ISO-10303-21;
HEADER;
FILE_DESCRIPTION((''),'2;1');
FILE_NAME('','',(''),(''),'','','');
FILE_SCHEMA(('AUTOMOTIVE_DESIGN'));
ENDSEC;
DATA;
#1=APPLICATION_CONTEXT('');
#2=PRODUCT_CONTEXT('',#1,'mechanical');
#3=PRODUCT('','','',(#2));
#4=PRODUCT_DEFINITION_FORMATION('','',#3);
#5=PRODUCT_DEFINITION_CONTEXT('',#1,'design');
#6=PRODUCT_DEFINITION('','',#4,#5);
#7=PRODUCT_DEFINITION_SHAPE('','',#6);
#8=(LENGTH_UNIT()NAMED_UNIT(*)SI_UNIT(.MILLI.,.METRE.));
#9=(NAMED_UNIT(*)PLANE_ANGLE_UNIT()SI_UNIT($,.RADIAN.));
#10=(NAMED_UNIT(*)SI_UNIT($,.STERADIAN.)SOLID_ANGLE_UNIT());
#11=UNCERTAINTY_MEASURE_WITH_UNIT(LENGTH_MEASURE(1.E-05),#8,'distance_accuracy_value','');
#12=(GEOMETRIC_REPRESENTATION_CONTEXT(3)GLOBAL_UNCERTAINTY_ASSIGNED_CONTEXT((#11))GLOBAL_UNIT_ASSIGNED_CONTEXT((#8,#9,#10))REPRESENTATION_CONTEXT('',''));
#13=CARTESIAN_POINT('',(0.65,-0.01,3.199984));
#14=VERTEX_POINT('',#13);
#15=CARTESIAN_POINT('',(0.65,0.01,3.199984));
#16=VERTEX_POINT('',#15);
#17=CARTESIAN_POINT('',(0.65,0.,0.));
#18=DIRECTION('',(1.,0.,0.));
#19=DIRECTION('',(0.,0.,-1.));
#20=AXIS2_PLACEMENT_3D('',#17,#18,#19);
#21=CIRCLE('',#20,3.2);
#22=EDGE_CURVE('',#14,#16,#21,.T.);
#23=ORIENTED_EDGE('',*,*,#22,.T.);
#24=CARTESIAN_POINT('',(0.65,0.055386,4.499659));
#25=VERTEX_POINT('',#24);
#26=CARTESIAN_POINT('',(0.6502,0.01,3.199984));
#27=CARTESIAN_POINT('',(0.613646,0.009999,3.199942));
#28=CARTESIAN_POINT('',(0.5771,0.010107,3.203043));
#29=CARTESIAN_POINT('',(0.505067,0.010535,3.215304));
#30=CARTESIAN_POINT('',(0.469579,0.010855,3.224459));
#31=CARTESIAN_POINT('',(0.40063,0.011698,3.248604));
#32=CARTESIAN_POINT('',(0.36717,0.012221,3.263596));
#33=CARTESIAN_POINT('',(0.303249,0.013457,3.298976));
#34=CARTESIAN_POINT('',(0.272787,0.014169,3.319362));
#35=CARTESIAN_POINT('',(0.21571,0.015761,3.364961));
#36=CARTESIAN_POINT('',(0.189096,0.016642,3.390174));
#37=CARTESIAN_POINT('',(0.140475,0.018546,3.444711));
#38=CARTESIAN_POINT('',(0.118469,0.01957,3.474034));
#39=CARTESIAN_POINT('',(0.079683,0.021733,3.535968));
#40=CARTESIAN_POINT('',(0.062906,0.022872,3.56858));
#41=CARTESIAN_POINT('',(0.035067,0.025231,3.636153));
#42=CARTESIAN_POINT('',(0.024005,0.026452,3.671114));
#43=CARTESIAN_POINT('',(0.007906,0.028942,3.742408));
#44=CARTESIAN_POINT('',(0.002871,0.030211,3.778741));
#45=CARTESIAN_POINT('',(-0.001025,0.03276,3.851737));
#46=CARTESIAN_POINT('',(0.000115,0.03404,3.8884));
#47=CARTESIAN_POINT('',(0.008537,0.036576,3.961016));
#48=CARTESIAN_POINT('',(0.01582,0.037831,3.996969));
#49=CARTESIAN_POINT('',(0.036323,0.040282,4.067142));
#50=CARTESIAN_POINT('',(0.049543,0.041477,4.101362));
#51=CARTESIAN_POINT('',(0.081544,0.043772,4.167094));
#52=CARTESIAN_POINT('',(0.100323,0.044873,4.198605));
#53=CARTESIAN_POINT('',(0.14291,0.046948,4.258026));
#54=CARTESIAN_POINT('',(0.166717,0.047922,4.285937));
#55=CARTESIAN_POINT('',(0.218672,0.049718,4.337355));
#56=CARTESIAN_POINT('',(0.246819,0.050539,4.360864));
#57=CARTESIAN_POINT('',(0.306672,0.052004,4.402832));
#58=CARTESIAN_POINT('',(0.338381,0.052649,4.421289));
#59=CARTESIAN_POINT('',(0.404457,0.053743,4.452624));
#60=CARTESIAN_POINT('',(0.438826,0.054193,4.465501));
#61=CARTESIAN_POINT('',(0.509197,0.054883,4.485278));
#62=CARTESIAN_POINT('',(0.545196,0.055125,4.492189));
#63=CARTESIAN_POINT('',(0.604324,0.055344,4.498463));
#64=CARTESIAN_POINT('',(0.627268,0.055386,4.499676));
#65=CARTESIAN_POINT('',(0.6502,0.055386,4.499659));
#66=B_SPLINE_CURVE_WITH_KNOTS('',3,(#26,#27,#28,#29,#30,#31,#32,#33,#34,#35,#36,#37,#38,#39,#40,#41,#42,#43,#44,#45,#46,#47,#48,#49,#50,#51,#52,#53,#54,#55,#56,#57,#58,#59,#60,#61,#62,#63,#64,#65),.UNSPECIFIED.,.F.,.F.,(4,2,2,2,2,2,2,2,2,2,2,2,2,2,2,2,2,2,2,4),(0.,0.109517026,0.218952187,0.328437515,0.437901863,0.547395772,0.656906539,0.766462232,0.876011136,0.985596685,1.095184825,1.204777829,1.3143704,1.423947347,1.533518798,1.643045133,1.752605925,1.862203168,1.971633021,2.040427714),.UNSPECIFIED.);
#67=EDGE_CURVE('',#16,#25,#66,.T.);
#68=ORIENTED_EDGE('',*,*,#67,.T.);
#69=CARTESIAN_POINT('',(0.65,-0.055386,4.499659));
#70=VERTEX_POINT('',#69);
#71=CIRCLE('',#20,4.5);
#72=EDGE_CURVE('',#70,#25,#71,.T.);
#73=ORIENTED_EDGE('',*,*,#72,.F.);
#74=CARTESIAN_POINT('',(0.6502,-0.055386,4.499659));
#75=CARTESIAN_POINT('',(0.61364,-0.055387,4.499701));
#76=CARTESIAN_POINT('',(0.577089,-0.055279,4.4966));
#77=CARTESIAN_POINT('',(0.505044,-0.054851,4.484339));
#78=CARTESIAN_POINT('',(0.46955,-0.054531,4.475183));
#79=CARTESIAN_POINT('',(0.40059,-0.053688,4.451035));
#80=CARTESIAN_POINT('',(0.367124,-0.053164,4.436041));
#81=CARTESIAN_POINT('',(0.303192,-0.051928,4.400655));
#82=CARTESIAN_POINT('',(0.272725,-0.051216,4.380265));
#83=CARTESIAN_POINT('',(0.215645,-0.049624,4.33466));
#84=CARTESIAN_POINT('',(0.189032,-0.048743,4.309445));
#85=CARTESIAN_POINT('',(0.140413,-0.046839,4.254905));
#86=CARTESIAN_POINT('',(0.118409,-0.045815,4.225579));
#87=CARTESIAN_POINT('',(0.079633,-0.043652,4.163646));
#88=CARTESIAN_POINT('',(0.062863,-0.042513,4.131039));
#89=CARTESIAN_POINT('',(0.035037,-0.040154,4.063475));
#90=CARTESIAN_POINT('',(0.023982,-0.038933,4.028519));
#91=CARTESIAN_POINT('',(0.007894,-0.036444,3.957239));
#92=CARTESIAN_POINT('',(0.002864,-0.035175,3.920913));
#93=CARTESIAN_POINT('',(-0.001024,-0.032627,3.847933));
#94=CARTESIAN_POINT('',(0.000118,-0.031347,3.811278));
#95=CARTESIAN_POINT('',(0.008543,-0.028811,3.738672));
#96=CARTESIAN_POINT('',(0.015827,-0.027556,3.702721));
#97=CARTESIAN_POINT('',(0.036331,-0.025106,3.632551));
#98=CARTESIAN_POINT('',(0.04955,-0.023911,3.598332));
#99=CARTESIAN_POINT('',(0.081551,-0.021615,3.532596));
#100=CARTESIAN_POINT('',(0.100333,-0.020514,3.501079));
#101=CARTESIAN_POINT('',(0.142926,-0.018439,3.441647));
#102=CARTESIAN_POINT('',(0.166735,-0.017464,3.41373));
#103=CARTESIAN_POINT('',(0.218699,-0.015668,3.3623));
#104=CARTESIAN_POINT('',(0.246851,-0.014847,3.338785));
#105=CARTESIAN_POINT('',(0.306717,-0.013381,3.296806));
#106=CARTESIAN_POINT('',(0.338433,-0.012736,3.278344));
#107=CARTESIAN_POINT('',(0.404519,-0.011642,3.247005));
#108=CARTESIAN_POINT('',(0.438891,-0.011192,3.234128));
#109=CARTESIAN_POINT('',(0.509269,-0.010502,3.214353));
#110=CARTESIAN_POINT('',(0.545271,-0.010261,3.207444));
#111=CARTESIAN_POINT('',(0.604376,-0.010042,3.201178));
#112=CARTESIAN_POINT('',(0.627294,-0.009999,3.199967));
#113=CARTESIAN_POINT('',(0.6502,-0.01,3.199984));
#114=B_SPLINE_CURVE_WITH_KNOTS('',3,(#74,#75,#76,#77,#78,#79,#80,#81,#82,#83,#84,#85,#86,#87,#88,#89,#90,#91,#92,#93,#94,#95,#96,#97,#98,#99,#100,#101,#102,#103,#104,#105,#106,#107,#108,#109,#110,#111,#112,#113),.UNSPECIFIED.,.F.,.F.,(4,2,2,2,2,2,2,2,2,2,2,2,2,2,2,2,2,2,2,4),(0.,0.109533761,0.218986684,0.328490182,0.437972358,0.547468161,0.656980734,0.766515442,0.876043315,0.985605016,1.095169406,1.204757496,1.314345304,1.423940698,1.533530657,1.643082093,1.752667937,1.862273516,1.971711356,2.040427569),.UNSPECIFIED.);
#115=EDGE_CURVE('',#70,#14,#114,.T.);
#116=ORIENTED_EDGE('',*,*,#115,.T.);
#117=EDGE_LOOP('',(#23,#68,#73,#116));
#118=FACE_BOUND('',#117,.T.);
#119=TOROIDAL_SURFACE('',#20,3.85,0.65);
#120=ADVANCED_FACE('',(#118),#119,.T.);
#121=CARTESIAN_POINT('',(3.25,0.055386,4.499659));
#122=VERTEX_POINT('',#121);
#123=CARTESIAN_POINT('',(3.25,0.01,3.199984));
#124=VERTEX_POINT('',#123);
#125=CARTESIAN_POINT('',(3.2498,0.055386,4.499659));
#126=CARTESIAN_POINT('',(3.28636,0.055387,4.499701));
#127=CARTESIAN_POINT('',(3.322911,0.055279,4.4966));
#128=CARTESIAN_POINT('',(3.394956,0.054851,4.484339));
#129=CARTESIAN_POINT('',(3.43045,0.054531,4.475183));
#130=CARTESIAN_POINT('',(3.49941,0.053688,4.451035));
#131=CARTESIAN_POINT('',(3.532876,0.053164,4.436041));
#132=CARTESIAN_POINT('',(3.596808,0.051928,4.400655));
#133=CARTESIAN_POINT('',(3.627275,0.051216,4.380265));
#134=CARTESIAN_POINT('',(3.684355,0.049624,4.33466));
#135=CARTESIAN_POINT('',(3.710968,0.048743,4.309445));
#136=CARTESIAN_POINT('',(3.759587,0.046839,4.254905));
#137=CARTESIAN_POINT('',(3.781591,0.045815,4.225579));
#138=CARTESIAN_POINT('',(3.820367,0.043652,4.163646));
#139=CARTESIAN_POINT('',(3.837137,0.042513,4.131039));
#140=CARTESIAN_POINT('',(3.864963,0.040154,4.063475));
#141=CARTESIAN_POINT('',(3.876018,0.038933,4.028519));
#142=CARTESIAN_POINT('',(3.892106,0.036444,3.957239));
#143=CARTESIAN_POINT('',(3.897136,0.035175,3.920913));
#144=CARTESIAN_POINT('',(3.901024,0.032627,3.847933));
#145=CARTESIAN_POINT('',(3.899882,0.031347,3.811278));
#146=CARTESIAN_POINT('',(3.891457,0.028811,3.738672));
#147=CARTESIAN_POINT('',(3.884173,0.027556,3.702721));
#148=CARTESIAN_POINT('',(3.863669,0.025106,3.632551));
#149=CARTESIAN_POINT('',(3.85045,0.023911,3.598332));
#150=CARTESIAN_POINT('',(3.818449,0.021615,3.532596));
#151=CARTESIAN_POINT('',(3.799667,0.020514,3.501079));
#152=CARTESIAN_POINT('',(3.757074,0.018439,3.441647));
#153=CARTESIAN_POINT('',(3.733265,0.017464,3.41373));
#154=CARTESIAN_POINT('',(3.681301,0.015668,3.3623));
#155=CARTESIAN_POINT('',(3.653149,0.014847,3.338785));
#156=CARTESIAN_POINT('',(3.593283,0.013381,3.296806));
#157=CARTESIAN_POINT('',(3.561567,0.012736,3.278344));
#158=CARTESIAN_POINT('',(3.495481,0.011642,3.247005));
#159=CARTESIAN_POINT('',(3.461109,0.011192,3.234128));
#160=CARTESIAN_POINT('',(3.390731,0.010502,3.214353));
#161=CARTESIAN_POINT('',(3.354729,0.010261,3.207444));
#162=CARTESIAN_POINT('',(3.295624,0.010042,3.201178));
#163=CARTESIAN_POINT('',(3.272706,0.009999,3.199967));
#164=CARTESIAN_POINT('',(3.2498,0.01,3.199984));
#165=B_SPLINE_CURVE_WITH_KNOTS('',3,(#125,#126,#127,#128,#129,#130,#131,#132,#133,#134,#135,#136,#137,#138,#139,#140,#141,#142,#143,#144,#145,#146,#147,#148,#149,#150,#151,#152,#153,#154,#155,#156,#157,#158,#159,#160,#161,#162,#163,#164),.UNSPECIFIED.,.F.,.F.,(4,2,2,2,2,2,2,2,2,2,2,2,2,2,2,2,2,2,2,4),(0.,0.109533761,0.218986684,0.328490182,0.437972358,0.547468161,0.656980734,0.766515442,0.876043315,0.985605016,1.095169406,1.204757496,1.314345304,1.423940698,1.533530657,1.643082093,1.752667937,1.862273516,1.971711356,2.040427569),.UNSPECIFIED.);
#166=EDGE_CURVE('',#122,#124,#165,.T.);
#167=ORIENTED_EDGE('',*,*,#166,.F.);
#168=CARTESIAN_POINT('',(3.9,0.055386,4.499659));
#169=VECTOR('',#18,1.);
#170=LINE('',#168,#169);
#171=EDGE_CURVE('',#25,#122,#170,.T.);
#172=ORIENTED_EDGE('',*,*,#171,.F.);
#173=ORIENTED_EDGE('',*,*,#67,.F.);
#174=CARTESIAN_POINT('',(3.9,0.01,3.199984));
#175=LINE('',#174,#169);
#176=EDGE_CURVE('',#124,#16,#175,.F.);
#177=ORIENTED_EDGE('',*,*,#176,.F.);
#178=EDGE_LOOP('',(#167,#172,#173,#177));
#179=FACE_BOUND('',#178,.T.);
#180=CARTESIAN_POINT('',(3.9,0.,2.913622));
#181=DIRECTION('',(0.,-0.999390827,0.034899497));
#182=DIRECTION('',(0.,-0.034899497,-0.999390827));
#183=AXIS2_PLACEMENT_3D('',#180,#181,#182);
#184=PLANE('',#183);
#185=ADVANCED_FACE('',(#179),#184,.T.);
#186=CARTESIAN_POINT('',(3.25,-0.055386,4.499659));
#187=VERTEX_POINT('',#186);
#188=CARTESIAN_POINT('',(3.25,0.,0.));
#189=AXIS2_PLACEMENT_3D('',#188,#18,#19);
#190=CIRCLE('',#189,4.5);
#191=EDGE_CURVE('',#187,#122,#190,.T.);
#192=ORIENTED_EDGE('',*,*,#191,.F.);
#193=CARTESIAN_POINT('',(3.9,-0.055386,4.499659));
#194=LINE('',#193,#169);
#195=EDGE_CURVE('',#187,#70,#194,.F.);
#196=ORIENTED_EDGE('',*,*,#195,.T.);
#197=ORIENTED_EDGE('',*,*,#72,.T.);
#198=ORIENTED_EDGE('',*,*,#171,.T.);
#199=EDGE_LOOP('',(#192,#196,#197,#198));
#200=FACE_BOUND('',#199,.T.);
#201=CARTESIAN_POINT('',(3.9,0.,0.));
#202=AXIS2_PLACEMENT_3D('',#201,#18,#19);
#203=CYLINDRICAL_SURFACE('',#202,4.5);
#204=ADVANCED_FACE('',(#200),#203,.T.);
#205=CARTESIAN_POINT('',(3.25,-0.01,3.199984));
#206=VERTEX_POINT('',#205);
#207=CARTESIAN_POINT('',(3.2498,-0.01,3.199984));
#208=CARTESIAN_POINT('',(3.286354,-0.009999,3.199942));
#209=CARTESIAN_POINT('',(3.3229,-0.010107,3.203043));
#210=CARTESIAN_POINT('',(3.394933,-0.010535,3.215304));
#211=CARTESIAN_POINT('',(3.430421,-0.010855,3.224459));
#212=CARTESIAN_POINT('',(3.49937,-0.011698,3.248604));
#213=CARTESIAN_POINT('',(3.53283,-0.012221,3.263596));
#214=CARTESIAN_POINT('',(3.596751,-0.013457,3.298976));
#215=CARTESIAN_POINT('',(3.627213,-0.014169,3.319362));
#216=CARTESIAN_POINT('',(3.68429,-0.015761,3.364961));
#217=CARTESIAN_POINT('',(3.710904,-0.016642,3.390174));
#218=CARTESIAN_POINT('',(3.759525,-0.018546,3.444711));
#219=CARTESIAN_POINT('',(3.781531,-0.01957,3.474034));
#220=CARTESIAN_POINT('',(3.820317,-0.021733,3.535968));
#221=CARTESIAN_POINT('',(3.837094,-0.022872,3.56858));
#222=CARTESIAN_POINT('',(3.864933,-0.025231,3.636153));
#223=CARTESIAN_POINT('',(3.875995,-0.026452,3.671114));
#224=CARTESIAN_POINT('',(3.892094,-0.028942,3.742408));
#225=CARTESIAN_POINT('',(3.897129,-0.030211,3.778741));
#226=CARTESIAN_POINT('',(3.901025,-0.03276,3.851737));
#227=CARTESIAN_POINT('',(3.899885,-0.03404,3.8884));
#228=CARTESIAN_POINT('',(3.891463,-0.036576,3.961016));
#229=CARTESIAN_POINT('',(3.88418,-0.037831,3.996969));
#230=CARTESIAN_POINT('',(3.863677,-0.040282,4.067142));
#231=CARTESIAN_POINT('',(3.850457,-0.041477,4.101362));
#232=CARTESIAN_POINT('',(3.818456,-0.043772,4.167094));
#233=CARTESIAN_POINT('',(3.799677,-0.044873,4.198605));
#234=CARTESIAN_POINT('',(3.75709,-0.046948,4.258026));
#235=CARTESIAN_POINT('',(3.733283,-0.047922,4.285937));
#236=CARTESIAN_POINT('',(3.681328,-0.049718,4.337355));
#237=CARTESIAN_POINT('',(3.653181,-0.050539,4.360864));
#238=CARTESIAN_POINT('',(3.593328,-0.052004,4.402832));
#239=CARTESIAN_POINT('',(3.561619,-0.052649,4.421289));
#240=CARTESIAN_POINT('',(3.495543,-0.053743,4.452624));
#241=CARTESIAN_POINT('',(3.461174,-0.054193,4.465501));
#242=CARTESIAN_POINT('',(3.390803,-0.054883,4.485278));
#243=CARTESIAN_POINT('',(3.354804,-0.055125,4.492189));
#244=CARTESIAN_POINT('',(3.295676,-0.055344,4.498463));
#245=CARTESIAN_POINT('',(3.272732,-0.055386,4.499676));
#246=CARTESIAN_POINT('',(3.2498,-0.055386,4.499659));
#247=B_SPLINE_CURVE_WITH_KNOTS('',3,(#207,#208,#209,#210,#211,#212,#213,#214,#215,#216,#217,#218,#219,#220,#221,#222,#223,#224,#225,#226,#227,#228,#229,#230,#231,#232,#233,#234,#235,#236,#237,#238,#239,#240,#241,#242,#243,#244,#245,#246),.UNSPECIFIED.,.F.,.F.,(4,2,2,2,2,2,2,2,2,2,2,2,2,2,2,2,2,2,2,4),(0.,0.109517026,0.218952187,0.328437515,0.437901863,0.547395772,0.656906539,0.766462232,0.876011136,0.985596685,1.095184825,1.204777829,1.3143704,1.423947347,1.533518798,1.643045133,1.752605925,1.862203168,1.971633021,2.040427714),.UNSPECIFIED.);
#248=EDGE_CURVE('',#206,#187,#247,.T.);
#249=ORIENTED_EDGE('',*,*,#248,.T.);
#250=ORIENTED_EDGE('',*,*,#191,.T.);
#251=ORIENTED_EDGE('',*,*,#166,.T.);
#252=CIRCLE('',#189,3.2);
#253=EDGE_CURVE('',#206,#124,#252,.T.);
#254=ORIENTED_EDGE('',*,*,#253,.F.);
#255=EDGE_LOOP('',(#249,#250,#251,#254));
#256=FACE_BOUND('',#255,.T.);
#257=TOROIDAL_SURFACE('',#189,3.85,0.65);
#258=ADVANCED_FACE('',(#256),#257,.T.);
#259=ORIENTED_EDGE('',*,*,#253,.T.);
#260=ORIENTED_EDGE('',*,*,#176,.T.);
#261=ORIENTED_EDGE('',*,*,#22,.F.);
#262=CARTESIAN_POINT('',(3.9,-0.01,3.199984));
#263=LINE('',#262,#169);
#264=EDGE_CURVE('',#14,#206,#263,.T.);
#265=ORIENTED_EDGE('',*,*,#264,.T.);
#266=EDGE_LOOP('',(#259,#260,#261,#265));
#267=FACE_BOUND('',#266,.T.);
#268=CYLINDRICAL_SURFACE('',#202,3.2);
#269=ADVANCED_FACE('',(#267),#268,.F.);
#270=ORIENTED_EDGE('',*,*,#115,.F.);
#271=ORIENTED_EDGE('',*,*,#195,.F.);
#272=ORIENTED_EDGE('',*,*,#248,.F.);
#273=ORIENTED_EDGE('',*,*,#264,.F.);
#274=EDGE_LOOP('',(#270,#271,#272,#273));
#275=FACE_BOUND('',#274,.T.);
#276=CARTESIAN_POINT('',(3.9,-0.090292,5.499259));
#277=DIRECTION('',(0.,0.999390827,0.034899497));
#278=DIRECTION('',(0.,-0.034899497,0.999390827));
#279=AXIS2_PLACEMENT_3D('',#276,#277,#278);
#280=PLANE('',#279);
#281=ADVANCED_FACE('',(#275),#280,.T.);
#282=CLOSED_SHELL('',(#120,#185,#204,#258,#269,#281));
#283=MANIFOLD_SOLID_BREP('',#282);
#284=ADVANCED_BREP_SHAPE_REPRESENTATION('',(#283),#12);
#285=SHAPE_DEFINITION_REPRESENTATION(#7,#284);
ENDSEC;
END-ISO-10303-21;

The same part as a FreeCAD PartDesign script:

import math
import FreeCAD as App
import Part
import Sketcher

V = App.Vector
Q = App.Units.Quantity

doc = App.newDocument("Part")
body = doc.addObject("PartDesign::Body", "Body")

sketch1 = body.newObject("Sketcher::SketchObject", "Sketch")
sketch1.AttachmentSupport = (doc.getObject("XY_Plane"), [""])
sketch1.MapMode = "FlatFace"
sketch1.addGeometry(Part.LineSegment(V(0.7, 3.2, 0), V(3.2, 3.2, 0)), False)
sketch1.addGeometry(Part.ArcOfCircle(Part.Circle(V(3.2, 3.9, 0), V(0, 0, 1), 0.7), math.radians(-90), math.radians(90)), False)
sketch1.addGeometry(Part.LineSegment(V(3.2, 4.5, 0), V(0.7, 4.5, 0)), False)
sketch1.addGeometry(Part.ArcOfCircle(Part.Circle(V(0.7, 3.9, 0), V(0, 0, 1), 0.7), math.radians(90), math.radians(270)), False)
sketch1.addConstraint(Sketcher.Constraint("Tangent", 0, 2, 1, 1))
sketch1.addConstraint(Sketcher.Constraint("Tangent", 1, 2, 2, 1))
sketch1.addConstraint(Sketcher.Constraint("Tangent", 2, 2, 3, 1))
sketch1.addConstraint(Sketcher.Constraint("Tangent", 3, 2, 0, 1))
sketch1.addConstraint(Sketcher.Constraint("Horizontal", 0))
sketch1.addConstraint(Sketcher.Constraint("Horizontal", 2))
sketch1.addConstraint(Sketcher.Constraint("Radius", 1, Q("0.65 mm")))
sketch1.addConstraint(Sketcher.Constraint("DistanceX", 0, 1, 0, 2, Q("2.6 mm")))
sketch1.addConstraint(Sketcher.Constraint("DistanceY", -1, 1, 0, 2, Q("3.2 mm")))
sketch1.addConstraint(Sketcher.Constraint("DistanceX", -1, 1, 1, 3, Q("3.25 mm")))
revolution = body.newObject("PartDesign::Revolution", "Revolution")
revolution.Profile = sketch1
revolution.ReferenceAxis = (sketch1, ["H_Axis"])
revolution.Angle = 360

sketch2 = body.newObject("Sketcher::SketchObject", "Sketch001")
sketch2.AttachmentSupport = (doc.getObject("YZ_Plane"), [""])
sketch2.MapMode = "FlatFace"
sketch2.addGeometry(Part.LineSegment(V(-0.09, 5.5, 0), V(0, 2.91, 0)), False)
sketch2.addGeometry(Part.LineSegment(V(0, 2.91, 0), V(0.09, 5.5, 0)), False)
sketch2.addGeometry(Part.ArcOfCircle(Part.Circle(V(0, 0, 0), V(0, 0, 1), 5.5), math.radians(89.06), math.radians(90.94)), False)
sketch2.addConstraint(Sketcher.Constraint("Coincident", 0, 2, 1, 1))
sketch2.addConstraint(Sketcher.Constraint("Coincident", 1, 2, 2, 1))
sketch2.addConstraint(Sketcher.Constraint("Coincident", 2, 2, 0, 1))
sketch2.addConstraint(Sketcher.Constraint("Coincident", 2, 3, -1, 1))
sketch2.addConstraint(Sketcher.Constraint("PointOnObject", 0, 2, -2))
sketch2.addConstraint(Sketcher.Constraint("Horizontal", 1, 2, 2, 2))
sketch2.addConstraint(Sketcher.Constraint("Angle", 0, Q("-88 deg")))
sketch2.addConstraint(Sketcher.Constraint("Radius", 2, Q("5.499997 mm")))
sketch2.addConstraint(Sketcher.Constraint("DistanceY", -1, 1, 0, 2, Q("2.913622 mm")))
pocket1 = body.newObject("PartDesign::Pocket", "Pocket")
pocket1.Profile = sketch2
pocket1.Length = 3.9
pocket1.Reversed = True

doc.recompute()
